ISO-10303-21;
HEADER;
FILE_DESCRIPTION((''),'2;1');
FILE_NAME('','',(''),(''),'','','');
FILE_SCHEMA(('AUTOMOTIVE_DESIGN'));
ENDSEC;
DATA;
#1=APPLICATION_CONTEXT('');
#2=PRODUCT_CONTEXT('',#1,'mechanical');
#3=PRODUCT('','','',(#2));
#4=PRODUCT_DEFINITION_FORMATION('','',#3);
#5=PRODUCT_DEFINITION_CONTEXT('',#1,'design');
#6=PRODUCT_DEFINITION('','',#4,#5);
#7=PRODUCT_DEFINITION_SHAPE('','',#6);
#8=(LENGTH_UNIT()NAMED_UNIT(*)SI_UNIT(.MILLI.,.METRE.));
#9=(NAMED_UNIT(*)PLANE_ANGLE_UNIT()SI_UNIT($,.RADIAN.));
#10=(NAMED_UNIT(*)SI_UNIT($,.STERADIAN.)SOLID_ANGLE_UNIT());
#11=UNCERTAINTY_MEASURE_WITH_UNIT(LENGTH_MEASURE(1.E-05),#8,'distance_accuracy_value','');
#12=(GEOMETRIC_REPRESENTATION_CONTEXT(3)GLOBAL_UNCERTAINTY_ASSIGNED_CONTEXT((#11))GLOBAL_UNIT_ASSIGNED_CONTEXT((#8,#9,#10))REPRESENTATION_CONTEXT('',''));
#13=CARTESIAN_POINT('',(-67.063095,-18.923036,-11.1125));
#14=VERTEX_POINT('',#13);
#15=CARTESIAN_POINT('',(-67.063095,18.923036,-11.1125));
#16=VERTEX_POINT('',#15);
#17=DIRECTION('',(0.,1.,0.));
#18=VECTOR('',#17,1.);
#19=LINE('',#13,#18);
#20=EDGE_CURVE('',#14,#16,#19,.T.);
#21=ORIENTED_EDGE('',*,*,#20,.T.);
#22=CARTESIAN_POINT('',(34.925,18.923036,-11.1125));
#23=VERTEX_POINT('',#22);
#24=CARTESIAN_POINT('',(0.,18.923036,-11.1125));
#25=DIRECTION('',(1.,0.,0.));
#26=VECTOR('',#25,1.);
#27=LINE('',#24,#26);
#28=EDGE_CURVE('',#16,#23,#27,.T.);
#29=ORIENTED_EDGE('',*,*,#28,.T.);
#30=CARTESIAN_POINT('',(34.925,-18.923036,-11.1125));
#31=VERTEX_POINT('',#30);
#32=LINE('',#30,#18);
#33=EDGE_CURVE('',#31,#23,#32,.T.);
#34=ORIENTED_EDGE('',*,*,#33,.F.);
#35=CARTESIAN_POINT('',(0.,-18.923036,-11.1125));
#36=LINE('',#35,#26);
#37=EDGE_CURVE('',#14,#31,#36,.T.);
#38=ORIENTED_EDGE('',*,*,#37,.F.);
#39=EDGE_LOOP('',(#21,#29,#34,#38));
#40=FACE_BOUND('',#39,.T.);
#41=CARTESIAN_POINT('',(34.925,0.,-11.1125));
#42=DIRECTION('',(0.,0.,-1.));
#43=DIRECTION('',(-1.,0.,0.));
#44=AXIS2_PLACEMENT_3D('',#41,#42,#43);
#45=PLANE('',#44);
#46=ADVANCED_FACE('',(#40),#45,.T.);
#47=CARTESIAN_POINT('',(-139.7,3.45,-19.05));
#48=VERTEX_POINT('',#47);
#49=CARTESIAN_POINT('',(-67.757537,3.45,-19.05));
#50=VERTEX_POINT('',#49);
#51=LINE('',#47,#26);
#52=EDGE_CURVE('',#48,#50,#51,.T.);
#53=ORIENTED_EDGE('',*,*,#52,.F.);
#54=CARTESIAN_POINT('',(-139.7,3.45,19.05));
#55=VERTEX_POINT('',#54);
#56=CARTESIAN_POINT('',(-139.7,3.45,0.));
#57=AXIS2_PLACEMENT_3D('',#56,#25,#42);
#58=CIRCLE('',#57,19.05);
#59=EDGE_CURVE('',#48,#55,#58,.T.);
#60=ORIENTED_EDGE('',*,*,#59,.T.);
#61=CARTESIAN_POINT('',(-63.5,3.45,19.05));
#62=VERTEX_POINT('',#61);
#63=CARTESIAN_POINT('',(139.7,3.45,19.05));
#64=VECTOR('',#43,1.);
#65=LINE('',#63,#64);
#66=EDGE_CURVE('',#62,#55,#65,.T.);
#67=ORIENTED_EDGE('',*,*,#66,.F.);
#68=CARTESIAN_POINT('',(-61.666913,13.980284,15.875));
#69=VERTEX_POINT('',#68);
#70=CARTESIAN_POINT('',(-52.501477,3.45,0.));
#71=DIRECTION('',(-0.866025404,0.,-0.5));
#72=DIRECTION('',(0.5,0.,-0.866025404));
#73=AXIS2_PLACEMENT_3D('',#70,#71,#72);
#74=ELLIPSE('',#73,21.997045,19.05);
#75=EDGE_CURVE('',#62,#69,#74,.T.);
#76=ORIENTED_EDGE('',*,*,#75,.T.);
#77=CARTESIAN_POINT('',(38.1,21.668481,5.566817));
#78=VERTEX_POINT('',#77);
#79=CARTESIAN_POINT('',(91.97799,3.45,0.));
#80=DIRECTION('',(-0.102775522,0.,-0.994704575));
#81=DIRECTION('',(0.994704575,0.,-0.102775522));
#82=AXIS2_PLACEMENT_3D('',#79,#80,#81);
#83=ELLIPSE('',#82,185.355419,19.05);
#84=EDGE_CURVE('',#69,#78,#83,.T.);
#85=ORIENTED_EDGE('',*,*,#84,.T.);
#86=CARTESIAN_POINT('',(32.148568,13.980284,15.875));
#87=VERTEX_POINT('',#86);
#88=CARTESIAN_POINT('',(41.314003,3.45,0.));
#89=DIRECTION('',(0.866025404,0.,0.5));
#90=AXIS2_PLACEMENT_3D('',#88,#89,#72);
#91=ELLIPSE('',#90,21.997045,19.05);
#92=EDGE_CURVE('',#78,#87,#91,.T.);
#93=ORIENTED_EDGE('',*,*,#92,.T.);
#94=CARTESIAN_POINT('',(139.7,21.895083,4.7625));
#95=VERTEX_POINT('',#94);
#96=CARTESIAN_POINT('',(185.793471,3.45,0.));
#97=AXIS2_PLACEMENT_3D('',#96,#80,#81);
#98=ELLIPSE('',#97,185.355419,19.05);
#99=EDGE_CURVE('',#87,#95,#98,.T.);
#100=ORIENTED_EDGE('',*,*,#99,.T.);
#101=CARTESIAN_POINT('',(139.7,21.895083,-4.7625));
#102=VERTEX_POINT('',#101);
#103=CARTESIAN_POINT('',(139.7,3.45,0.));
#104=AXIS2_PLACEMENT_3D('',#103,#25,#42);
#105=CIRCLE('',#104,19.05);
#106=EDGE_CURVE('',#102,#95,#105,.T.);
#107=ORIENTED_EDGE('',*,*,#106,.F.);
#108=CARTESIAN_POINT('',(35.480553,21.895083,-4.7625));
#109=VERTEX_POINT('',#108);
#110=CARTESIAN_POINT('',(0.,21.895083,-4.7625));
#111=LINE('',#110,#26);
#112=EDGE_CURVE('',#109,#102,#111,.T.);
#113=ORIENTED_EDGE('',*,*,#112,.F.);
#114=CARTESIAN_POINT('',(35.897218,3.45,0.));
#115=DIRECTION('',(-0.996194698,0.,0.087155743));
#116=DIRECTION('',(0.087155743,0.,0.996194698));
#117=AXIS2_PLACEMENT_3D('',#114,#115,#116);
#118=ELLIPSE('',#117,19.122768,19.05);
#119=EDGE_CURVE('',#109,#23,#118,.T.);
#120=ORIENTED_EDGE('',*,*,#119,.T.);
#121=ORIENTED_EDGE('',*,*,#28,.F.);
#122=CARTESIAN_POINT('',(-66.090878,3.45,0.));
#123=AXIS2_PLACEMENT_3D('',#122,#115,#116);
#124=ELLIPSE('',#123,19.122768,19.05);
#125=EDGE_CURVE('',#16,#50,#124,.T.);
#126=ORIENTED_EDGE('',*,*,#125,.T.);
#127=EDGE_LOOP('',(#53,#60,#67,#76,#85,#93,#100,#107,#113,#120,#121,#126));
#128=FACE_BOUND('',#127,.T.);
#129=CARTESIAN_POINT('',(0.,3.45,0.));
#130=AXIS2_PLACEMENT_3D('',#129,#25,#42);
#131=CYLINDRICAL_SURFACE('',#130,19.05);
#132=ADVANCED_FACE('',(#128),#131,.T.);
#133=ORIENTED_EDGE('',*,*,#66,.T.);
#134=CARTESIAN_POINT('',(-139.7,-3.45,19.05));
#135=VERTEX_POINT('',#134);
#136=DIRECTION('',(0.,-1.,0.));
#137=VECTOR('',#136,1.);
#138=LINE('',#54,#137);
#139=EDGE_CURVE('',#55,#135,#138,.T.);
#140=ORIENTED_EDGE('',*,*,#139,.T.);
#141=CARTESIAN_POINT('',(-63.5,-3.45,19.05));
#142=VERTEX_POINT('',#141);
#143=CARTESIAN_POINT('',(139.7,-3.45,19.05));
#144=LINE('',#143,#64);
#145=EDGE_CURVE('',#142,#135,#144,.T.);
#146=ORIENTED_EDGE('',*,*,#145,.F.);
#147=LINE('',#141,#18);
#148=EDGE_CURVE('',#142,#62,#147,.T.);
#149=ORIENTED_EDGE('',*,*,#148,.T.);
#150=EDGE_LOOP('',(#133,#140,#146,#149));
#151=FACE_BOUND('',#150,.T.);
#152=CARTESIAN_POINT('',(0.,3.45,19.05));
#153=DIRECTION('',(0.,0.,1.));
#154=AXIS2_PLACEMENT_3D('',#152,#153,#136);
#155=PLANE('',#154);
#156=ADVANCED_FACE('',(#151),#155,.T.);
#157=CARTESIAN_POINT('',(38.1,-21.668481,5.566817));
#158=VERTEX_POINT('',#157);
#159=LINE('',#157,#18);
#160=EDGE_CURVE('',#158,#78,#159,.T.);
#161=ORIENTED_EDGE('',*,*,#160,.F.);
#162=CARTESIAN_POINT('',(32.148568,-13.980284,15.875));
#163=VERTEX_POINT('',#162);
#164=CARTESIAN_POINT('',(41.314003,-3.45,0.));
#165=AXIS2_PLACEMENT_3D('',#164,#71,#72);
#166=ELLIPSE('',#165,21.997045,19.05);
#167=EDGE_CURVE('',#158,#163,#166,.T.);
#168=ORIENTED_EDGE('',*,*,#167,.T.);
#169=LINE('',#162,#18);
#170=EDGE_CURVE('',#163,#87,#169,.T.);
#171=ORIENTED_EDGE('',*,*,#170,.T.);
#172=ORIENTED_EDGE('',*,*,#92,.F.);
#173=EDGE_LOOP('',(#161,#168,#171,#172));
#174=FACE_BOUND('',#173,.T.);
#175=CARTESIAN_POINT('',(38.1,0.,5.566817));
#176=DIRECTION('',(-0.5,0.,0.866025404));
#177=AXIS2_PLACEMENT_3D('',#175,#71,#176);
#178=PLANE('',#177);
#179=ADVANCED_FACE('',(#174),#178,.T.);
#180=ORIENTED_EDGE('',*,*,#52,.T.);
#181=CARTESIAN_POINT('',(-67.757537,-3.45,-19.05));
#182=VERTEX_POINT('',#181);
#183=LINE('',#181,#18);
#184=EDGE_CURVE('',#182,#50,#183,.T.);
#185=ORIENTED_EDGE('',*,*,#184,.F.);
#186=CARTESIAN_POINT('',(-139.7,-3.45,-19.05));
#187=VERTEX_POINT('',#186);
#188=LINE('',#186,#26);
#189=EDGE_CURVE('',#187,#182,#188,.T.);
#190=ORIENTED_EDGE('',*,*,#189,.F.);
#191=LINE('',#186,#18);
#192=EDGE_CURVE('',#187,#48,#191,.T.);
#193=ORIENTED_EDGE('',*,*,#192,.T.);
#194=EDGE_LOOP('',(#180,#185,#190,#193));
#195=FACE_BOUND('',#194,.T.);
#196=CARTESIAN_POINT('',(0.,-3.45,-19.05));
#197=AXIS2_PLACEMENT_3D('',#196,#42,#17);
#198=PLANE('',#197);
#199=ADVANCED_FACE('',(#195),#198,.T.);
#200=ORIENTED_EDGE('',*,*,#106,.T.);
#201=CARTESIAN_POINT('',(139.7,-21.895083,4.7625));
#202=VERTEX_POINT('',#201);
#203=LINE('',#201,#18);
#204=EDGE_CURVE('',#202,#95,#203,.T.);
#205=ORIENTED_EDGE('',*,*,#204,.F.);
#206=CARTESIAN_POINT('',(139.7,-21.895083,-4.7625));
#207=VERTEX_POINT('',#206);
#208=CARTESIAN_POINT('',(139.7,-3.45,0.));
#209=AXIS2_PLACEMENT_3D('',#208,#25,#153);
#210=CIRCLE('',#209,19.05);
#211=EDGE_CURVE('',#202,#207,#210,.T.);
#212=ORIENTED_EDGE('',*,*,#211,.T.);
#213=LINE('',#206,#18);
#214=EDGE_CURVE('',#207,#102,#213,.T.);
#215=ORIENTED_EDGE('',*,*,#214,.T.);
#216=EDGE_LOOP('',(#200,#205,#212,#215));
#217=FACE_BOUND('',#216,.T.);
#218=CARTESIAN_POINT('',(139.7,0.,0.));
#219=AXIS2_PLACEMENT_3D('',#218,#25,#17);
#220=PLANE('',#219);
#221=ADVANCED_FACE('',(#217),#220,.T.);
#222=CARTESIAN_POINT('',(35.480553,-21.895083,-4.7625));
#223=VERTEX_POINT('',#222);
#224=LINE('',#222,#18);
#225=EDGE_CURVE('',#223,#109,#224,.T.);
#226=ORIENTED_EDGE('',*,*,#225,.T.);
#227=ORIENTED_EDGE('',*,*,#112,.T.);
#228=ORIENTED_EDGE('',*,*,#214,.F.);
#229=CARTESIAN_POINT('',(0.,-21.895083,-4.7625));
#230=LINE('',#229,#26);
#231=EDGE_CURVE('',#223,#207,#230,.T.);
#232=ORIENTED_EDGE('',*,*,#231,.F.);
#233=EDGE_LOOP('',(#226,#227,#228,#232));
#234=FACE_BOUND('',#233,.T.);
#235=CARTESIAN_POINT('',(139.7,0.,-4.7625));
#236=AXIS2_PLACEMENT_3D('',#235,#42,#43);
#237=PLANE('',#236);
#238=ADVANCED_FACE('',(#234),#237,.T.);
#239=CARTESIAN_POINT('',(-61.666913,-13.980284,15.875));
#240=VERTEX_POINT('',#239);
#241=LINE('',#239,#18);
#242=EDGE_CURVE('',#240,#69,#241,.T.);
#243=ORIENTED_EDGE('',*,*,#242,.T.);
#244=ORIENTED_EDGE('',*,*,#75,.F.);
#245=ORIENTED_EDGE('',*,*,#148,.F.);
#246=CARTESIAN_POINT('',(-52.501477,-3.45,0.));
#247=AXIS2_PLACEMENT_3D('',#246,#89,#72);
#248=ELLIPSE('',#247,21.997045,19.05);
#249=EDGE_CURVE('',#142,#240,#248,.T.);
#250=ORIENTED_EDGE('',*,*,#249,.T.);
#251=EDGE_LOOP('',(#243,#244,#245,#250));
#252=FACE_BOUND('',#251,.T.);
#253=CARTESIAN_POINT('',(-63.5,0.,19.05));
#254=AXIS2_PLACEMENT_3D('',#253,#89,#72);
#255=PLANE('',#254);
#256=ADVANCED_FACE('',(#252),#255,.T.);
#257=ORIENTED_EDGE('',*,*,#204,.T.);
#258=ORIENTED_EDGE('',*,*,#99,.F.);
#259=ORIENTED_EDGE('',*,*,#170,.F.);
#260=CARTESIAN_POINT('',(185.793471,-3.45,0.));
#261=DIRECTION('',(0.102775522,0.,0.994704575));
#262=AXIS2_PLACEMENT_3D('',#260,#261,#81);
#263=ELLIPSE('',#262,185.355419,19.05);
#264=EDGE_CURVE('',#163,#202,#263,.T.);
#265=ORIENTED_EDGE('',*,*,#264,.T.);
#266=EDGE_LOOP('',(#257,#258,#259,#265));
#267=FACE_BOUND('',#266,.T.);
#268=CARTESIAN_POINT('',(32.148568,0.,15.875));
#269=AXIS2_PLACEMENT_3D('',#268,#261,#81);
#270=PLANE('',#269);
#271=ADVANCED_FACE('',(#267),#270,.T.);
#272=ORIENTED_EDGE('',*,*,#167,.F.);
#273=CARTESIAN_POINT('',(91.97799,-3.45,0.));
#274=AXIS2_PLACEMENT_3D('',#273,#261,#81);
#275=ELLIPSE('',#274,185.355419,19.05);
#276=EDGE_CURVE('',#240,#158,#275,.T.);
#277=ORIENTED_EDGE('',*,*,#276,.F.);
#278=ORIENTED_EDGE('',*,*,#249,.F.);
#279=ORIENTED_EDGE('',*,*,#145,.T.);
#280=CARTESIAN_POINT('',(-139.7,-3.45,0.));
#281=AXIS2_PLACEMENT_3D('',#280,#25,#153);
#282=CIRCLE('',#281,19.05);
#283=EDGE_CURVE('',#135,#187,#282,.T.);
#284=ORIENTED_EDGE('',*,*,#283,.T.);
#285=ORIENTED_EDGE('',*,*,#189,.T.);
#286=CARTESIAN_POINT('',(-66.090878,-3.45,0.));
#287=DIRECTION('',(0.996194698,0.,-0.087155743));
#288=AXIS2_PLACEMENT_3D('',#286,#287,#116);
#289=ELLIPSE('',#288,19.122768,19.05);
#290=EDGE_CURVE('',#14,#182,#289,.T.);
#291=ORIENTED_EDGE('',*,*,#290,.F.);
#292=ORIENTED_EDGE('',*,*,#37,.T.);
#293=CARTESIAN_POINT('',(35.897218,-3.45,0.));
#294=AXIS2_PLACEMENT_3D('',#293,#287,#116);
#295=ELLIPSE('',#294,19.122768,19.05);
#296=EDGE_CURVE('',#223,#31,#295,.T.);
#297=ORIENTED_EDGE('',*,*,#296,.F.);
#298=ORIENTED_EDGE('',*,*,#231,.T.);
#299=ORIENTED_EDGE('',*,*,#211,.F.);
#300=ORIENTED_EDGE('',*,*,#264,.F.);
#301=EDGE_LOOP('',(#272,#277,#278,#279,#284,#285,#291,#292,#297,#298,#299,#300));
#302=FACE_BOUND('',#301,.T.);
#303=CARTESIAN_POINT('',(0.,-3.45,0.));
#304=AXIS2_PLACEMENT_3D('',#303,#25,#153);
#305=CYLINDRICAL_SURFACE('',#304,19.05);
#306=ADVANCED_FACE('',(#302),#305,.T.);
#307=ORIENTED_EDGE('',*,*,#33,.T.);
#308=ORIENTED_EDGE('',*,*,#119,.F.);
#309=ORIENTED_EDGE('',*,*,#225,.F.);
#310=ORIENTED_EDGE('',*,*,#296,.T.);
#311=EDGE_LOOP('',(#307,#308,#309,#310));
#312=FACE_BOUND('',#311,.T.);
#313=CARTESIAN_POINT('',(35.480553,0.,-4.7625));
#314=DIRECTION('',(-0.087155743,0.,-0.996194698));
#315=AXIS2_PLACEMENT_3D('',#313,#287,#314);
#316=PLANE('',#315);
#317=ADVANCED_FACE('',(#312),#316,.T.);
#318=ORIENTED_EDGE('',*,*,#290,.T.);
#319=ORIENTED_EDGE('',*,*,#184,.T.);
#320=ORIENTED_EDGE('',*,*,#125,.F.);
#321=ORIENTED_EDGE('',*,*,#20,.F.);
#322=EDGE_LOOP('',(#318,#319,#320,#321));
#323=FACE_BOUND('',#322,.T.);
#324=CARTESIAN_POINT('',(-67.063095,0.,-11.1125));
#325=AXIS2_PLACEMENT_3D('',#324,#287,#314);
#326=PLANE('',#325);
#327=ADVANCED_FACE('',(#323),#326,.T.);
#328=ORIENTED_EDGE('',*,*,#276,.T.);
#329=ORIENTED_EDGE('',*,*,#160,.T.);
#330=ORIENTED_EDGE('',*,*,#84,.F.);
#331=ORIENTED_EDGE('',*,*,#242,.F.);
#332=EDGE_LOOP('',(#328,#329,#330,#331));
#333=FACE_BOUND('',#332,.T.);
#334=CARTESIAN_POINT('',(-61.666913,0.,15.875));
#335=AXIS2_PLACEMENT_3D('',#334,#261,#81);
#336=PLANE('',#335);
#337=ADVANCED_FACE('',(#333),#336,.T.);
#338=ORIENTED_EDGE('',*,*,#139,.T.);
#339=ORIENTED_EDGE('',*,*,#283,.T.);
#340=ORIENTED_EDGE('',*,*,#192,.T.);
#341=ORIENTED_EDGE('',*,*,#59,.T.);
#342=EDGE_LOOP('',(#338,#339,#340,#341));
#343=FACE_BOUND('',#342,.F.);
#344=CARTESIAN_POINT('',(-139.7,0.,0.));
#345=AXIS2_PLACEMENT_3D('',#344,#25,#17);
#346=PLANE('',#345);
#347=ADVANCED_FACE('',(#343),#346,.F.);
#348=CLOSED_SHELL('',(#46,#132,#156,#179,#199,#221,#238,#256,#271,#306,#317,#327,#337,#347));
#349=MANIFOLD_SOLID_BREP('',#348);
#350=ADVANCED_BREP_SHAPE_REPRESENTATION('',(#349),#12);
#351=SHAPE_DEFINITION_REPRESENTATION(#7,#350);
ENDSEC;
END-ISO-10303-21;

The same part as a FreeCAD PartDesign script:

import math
import FreeCAD as App
import Part
import Sketcher
from FreeCAD import Vector
Q = App.Units.Quantity

doc = App.newDocument("Part")
body = doc.addObject("PartDesign::Body", "Body")

# Sketch on YZ plane
sketch1 = body.newObject("Sketcher::SketchObject", "Sketch")
sketch1.AttachmentSupport = (doc.getObject("YZ_Plane"), [""])
sketch1.MapMode = "FlatFace"
sketch1.addGeometry([
    Part.ArcOfCircle(Part.Circle(Vector(-3.45, 0, 0), Vector(0, 0, 1), 19.05), math.radians(90), math.radians(270)),
    Part.LineSegment(Vector(-3.45, -19.05, 0), Vector(3.45, -19.05, 0)),
    Part.ArcOfCircle(Part.Circle(Vector(3.45, 0, 0), Vector(0, 0, 1), 19.05), math.radians(-90), math.radians(90)),
    Part.LineSegment(Vector(3.45, 19.05, 0), Vector(-3.45, 19.05, 0)),
], False)
sketch1.addConstraint([
    Sketcher.Constraint("Tangent", 0, 2, 1, 1),
    Sketcher.Constraint("Tangent", 1, 2, 2, 1),
    Sketcher.Constraint("Tangent", 2, 2, 3, 1),
    Sketcher.Constraint("Tangent", 3, 2, 0, 1),
    Sketcher.Constraint("Horizontal", 1),
    Sketcher.Constraint("Horizontal", 3),
    Sketcher.Constraint("Symmetric", 0, 3, 2, 3, -1, 1),
    Sketcher.Constraint("Radius", 0, Q("0.75 in")),
    Sketcher.Constraint("DistanceX", 1, 1, 1, 2, Q("6.9 mm")),
])
pad1 = body.newObject("PartDesign::Pad", "Pad")
pad1.Profile = sketch1
pad1.Type = "TwoLengths"
pad1.Length = Q("5.5 in")
pad1.Length2 = Q("5.5 in")

# Sketch on XZ plane
sketch2 = body.newObject("Sketcher::SketchObject", "Sketch001")
sketch2.AttachmentSupport = (doc.getObject("XZ_Plane"), [""])
sketch2.MapMode = "FlatFace"
sketch2.addGeometry([
    Part.LineSegment(Vector(139.7, 19.05, 0), Vector(-63.5, 19.05, 0)),  # 0
    Part.LineSegment(Vector(-63.5, 19.05, 0), Vector(-61.666913, 15.875, 0)),  # 1
    Part.LineSegment(Vector(-61.666913, 15.875, 0), Vector(38.1, 5.566817, 0)),  # 2
    Part.LineSegment(Vector(38.1, 5.566817, 0), Vector(32.148568, 15.875, 0)),  # 3
    Part.LineSegment(Vector(32.148568, 15.875, 0), Vector(139.7, 4.7625, 0)),  # 4
    Part.LineSegment(Vector(139.7, 4.7625, 0), Vector(139.7, 19.05, 0)),  # 5
], False)
sketch2.addConstraint([
    Sketcher.Constraint("Coincident", 0, 2, 1, 1),
    Sketcher.Constraint("Coincident", 1, 2, 2, 1),
    Sketcher.Constraint("Coincident", 2, 2, 3, 1),
    Sketcher.Constraint("Coincident", 3, 2, 4, 1),
    Sketcher.Constraint("Coincident", 4, 2, 5, 1),
    Sketcher.Constraint("Coincident", 5, 2, 0, 1),
    Sketcher.Constraint("Horizontal", 0),
    Sketcher.Constraint("Vertical", 5),
    Sketcher.Constraint("Parallel", 1, 3),
    Sketcher.Constraint("Parallel", 2, 4),
    Sketcher.Constraint("Horizontal", 1, 2, 3, 2),
    Sketcher.Constraint("DistanceX", 0, 2, 0, 1, Q("8 in")),
    Sketcher.Constraint("Angle", 1, Q("-60 deg")),
    Sketcher.Constraint("DistanceX", 0, 2, 2, 2, Q("4 in")),
    Sketcher.Constraint("DistanceX", 0, 2, -1, 1, Q("2.5 in")),
    Sketcher.Constraint("DistanceY", 5, 1, 5, 2, Q("0.5625 in")),
    Sketcher.Constraint("DistanceY", -1, 1, 0, 2, Q("0.75 in")),
    Sketcher.Constraint("DistanceY", -1, 1, 1, 2, Q("0.625 in")),
])
pocket1 = body.newObject("PartDesign::Pocket", "Pocket")
pocket1.Profile = sketch2
pocket1.Type = "ThroughAll"
pocket1.Midplane = True

# Sketch on XZ plane
sketch3 = body.newObject("Sketcher::SketchObject", "Sketch002")
sketch3.AttachmentSupport = (doc.getObject("XZ_Plane"), [""])
sketch3.MapMode = "FlatFace"
sketch3.addGeometry([
    Part.LineSegment(Vector(139.7, -19.05, 0), Vector(139.7, -4.7625, 0)),  # 0
    Part.LineSegment(Vector(139.7, -4.7625, 0), Vector(35.480553, -4.7625, 0)),  # 1
    Part.LineSegment(Vector(35.480553, -4.7625, 0), Vector(34.925, -11.1125, 0)),  # 2
    Part.LineSegment(Vector(34.925, -11.1125, 0), Vector(-67.063095, -11.1125, 0)),  # 3
    Part.LineSegment(Vector(-67.063095, -11.1125, 0), Vector(-67.757537, -19.05, 0)),  # 4
    Part.LineSegment(Vector(-67.757537, -19.05, 0), Vector(139.7, -19.05, 0)),  # 5
], False)
sketch3.addConstraint([
    Sketcher.Constraint("Coincident", 0, 2, 1, 1),
    Sketcher.Constraint("Coincident", 1, 2, 2, 1),
    Sketcher.Constraint("Coincident", 2, 2, 3, 1),
    Sketcher.Constraint("Coincident", 3, 2, 4, 1),
    Sketcher.Constraint("Coincident", 4, 2, 5, 1),
    Sketcher.Constraint("Coincident", 5, 2, 0, 1),
    Sketcher.Constraint("Vertical", 0),
    Sketcher.Constraint("Horizontal", 1),
    Sketcher.Constraint("Horizontal", 3),
    Sketcher.Constraint("Horizontal", 5),
    Sketcher.Constraint("Parallel", 2, 4),
    Sketcher.Constraint("Angle", 2, Q("-95 deg")),
    Sketcher.Constraint("DistanceX", -1, 1, 0, 2, Q("5.5 in")),
    Sketcher.Constraint("DistanceY", 0, 1, 0, 2, Q("0.5625 in")),
    Sketcher.Constraint("DistanceY", 4, 2, -1, 1, Q("0.75 in")),
    Sketcher.Constraint("DistanceY", 2, 2, 1, 2, Q("0.25 in")),
    Sketcher.Constraint("DistanceX", -1, 1, 2, 2, Q("1.375 in")),
    Sketcher.Constraint("DistanceX", 3, 2, 3, 1, Q("101.988095 mm")),
])
pocket2 = body.newObject("PartDesign::Pocket", "Pocket001")
pocket2.Profile = sketch3
pocket2.Type = "ThroughAll"
pocket2.Midplane = True

doc.recompute()
